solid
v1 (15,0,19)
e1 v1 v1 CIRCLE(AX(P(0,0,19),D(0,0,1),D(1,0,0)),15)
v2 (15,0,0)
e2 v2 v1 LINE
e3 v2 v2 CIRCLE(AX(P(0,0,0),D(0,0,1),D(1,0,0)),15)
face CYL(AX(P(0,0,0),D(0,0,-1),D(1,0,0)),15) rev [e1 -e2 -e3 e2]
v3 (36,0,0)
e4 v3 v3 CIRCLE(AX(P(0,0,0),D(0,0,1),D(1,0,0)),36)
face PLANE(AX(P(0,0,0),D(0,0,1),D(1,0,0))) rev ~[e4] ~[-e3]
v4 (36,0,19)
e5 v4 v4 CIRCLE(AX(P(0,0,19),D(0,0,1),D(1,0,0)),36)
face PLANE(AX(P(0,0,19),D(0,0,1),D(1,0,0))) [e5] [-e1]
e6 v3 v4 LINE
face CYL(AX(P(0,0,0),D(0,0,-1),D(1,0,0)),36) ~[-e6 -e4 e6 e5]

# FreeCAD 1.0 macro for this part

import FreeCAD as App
import Part
import Sketcher

V = App.Vector
Q = App.Units.Quantity

doc = App.newDocument("Part")
body = doc.addObject("PartDesign::Body", "Body")

# Sketch on XY plane
sketch1 = body.newObject("Sketcher::SketchObject", "Sketch")
sketch1.AttachmentSupport = (doc.getObject("XY_Plane"), [""])
sketch1.MapMode = "FlatFace"
sketch1.addGeometry([
    Part.Circle(V(0, 0, 0), V(0, 0, 1), 36),
    Part.Circle(V(0, 0, 0), V(0, 0, 1), 15),
], False)
sketch1.addConstraint([
    Sketcher.Constraint("Coincident", 0, 3, -1, 1),
    Sketcher.Constraint("Coincident", 1, 3, -1, 1),
    Sketcher.Constraint("Diameter", 0, Q("72 mm")),
    Sketcher.Constraint("Diameter", 1, Q("30 mm")),
])
pad1 = body.newObject("PartDesign::Pad", "Pad")
pad1.Profile = sketch1
pad1.Length = 19

doc.recompute()
